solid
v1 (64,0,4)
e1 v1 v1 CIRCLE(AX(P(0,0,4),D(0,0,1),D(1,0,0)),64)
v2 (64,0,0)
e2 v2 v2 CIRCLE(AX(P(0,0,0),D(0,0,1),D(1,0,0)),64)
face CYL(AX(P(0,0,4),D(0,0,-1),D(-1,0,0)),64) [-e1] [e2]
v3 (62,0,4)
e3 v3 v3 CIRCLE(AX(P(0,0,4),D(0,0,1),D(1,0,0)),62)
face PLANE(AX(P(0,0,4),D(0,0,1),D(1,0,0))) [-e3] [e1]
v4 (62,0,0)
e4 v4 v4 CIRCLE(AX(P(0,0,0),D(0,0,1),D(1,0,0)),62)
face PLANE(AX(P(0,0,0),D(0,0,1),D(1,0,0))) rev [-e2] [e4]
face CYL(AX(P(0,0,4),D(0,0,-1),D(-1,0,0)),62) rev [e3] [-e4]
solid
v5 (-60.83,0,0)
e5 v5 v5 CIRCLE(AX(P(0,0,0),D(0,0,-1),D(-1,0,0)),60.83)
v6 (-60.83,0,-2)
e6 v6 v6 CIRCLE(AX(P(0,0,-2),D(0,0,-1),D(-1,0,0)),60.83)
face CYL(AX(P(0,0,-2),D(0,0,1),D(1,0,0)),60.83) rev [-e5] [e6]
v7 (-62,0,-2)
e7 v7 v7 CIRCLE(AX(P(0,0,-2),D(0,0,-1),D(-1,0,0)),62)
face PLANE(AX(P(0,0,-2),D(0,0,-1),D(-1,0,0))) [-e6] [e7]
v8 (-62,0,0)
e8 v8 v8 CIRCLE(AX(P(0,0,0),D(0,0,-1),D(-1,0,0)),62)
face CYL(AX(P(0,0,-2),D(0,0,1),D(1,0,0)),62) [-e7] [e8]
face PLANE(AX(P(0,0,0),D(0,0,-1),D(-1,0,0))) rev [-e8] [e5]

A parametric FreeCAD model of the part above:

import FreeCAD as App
import Part
import Sketcher
Q = App.Units.Quantity

doc = App.newDocument("Part")
body = doc.addObject("PartDesign::Body", "Body")

sketch1 = doc.addObject("Sketcher::SketchObject", "Sketch")
body.addObject(sketch1)
sketch1.AttachmentSupport = (doc.XY_Plane, [""])
sketch1.MapMode = "FlatFace"
sketch1.addGeometry([
    Part.Circle(App.Vector(0, 0, 0), App.Vector(0, 0, 1), 64),
    Part.Circle(App.Vector(0, 0, 0), App.Vector(0, 0, 1), 62),
], False)
sketch1.addConstraint([
    Sketcher.Constraint("Coincident", 0, 3, -1, 1),
    Sketcher.Constraint("Coincident", 1, 3, -1, 1),
    Sketcher.Constraint("Diameter", 0, Q("128 mm")),
    Sketcher.Constraint("Diameter", 1, Q("124 mm")),
])
pad1 = doc.addObject("PartDesign::Pad", "Pad")
body.addObject(pad1)
pad1.Profile = sketch1
pad1.Length = 4
body2 = doc.addObject("PartDesign::Body", "Body001")

sketch2 = doc.addObject("Sketcher::SketchObject", "Sketch001")
body2.addObject(sketch2)
sketch2.AttachmentSupport = (doc.getObject("XY_Plane001"), [""])
sketch2.MapMode = "FlatFace"
sketch2.AttachmentOffset = App.Placement(App.Vector(0, 0, -2), App.Rotation())
sketch2.addGeometry([
    Part.Circle(App.Vector(0, 0, 0), App.Vector(0, 0, 1), 62),
    Part.Circle(App.Vector(0, 0, 0), App.Vector(0, 0, 1), 61),
], False)
sketch2.addConstraint([
    Sketcher.Constraint("Coincident", 0, 3, -1, 1),
    Sketcher.Constraint("Coincident", 1, 3, -1, 1),
    Sketcher.Constraint("Diameter", 0, Q("124 mm")),
    Sketcher.Constraint("Diameter", 1, Q("121.66 mm")),
])
pad2 = doc.addObject("PartDesign::Pad", "Pad001")
body2.addObject(pad2)
pad2.Profile = sketch2
pad2.Length = 2

doc.recompute()
